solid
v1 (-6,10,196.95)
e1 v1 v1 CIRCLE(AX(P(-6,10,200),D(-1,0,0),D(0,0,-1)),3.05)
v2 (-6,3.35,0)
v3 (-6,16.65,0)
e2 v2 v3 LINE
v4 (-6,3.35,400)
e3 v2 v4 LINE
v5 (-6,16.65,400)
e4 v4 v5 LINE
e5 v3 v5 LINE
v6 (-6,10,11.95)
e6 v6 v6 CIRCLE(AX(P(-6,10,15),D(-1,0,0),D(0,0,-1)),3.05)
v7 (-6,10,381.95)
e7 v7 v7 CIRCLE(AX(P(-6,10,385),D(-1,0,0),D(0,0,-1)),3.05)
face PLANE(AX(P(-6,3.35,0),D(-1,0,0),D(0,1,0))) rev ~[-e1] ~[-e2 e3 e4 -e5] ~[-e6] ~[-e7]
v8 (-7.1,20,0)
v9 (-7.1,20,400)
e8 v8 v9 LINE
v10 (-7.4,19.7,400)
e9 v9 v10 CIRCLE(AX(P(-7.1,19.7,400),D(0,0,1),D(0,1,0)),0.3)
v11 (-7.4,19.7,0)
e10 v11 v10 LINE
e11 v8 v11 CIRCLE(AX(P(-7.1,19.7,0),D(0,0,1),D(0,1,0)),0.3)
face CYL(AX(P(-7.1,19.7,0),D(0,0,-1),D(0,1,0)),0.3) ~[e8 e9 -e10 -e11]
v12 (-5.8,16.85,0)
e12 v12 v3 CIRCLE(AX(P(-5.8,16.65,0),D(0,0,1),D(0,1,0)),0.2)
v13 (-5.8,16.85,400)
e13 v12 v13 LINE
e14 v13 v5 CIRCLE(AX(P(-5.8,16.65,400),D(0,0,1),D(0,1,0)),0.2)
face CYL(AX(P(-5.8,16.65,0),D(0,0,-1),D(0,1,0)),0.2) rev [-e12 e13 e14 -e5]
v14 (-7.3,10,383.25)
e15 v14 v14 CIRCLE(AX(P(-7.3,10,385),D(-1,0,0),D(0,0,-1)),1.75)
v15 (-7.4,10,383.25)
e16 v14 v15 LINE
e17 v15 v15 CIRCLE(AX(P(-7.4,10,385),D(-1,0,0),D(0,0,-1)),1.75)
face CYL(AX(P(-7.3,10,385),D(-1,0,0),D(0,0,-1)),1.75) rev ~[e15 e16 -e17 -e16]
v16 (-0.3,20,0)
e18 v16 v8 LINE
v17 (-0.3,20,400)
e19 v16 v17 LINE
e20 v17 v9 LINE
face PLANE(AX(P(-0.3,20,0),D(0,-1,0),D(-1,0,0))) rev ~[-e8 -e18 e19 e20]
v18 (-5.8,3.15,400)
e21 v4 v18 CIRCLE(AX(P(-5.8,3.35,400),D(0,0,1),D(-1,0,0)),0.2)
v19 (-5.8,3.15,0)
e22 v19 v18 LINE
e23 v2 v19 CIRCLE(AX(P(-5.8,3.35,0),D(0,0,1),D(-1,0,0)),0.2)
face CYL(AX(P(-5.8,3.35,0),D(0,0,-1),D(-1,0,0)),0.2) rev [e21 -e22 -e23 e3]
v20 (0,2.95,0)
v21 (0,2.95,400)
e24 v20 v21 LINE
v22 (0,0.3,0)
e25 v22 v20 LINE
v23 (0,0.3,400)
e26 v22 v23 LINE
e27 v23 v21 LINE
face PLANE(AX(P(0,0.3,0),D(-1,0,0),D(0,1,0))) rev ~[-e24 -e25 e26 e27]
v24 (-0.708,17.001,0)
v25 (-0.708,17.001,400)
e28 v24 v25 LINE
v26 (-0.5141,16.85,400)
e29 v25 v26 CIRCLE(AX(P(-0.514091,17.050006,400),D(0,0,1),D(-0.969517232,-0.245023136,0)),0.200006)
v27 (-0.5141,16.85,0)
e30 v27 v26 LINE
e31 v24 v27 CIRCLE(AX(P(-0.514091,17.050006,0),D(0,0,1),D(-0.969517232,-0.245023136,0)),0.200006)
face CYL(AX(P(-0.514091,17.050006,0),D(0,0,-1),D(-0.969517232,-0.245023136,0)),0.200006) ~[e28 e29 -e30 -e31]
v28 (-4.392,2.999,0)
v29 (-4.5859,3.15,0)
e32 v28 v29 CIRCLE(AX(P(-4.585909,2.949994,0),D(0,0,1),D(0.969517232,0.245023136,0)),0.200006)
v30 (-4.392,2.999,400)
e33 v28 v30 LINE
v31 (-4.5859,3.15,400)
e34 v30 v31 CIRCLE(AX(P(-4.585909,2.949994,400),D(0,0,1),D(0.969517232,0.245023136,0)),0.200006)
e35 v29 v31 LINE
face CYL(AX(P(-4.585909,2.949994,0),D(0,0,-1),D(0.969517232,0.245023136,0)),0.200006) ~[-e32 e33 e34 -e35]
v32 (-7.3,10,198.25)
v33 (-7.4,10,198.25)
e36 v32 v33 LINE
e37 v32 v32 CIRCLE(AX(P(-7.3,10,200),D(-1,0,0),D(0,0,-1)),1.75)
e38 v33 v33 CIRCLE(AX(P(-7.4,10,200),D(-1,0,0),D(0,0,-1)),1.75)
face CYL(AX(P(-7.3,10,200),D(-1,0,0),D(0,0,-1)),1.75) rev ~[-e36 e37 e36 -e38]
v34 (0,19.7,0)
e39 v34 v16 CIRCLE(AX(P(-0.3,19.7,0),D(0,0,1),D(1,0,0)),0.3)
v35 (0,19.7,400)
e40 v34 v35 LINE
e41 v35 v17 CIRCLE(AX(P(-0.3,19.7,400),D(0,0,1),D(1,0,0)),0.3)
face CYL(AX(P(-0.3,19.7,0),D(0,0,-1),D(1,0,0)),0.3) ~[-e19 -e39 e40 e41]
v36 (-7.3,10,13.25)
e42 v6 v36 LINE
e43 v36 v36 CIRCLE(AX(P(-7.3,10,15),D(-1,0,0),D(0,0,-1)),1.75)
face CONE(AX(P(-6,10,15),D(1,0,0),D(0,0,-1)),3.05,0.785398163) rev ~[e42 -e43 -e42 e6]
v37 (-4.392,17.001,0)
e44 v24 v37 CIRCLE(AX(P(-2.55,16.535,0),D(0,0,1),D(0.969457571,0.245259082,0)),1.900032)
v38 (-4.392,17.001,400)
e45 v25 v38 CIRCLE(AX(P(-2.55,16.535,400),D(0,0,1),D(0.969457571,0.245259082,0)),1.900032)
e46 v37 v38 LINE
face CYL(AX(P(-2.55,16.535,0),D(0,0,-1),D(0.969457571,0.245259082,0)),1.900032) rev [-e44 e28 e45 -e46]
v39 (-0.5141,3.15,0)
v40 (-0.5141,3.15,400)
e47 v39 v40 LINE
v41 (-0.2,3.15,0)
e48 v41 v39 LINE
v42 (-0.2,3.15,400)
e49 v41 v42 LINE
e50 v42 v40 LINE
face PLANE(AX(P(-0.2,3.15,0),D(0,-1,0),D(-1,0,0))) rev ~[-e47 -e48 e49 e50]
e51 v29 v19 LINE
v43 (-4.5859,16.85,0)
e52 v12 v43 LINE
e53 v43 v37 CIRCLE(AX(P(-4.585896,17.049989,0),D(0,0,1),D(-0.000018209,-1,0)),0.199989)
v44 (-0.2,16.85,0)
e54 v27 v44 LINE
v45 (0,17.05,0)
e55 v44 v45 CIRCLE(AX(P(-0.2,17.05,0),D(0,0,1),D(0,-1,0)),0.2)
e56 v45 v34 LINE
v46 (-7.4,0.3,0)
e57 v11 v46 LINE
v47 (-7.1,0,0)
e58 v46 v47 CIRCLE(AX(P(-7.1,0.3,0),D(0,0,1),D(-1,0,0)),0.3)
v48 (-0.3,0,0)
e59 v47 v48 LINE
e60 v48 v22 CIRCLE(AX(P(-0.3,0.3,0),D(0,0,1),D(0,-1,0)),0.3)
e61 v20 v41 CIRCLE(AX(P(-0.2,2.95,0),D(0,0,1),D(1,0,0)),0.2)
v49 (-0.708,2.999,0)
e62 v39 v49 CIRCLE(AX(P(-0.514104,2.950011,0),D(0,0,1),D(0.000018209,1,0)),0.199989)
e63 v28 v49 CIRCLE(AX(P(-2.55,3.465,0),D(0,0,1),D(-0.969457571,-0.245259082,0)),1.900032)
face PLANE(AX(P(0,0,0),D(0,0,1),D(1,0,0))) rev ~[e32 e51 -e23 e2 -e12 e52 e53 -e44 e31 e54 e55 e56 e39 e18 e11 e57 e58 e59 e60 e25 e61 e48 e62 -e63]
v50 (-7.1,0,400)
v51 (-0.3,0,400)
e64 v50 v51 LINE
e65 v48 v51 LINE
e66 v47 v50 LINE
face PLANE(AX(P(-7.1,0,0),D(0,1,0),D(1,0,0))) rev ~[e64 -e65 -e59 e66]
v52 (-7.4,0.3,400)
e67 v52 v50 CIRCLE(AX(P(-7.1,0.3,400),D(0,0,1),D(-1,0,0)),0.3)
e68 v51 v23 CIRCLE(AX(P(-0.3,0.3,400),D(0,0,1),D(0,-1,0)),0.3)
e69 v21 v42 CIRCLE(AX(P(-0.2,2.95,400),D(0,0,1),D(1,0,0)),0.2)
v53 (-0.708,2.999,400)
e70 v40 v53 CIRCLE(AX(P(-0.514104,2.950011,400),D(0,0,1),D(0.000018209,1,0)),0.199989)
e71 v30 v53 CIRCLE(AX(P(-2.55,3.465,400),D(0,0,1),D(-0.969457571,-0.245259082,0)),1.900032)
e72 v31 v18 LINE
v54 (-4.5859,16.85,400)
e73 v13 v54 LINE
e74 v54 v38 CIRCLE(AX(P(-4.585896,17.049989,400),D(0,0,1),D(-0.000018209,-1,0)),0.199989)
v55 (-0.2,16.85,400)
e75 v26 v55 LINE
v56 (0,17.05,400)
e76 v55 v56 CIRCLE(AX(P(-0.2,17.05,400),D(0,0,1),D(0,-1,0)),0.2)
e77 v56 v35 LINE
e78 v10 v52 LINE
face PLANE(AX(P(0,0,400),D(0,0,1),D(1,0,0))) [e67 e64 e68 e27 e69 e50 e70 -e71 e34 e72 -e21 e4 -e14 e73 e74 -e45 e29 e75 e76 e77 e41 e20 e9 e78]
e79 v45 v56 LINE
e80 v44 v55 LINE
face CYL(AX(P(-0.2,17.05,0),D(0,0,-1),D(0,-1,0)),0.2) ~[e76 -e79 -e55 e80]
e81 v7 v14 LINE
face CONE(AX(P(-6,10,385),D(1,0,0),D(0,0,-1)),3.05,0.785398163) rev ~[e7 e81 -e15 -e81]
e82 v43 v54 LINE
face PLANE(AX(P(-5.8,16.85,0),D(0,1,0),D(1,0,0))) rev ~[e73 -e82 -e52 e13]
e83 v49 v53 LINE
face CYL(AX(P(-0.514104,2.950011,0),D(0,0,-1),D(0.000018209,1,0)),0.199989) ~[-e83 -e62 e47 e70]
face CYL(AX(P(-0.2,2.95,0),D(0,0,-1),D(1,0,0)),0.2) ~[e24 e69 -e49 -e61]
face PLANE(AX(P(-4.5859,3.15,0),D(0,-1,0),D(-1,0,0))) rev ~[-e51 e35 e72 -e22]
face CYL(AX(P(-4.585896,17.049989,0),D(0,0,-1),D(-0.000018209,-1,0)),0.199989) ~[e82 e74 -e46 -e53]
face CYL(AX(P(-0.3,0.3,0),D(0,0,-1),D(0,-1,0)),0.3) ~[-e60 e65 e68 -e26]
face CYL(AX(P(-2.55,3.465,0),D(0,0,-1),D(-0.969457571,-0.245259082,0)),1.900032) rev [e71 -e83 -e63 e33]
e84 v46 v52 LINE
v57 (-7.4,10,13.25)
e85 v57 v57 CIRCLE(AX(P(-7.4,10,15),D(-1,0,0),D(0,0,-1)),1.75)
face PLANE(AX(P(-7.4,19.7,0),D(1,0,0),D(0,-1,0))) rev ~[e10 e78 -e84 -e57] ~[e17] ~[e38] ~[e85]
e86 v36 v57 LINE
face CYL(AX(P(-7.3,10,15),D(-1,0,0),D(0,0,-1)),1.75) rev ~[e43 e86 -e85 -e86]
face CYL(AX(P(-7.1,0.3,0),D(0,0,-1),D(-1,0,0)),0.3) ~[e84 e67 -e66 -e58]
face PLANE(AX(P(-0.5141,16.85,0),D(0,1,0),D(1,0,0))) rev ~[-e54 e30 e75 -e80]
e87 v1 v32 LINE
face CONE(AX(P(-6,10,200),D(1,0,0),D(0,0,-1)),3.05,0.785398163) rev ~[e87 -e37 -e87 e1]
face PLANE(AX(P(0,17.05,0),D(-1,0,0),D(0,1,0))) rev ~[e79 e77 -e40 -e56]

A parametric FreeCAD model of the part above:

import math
import FreeCAD as App
import Part
import Sketcher

V = App.Vector
Q = App.Units.Quantity

doc = App.newDocument("Part")
params = doc.addObject("Spreadsheet::Sheet", "Params")
for row, (alias, value) in enumerate([
    ("sketch1_radius", "0.3 mm"),
    ("sketch1_radius2", "0.2 mm"),
    ("sketch1_radius3", "1.9 mm"),
    ("sketch1_width", "6.8 mm"),
    ("sketch1_height", "19.4 mm"),
    ("pad1_length", "400 mm"),
    ("sketch2_diameter", "3.5 mm"),
    ("hole_diameter", "3.5 mm"),
    ("hole_depth", "1.4 mm"),
    ("hole_csink_diameter", "6.1 mm"),
    ("linearpattern_pitch", "185 mm"),
], start=1):
    params.set(f"A{row}", alias)
    params.set(f"B{row}", "=" + value)
    params.setAlias(f"B{row}", alias)

body = doc.addObject("PartDesign::Body", "Body")

sketch1 = doc.addObject("Sketcher::SketchObject", "Sketch")
body.addObject(sketch1)
sketch1.AttachmentSupport = (doc.XY_Plane, [""])
sketch1.MapMode = "FlatFace"
sketch1.addGeometry(Part.ArcOfCircle(Part.Circle(V(-7.1, 19.7, 0), V(0, 0, 1), 0.3), math.radians(90), math.radians(180)), False)
sketch1.addGeometry(Part.LineSegment(V(-7.4, 19.7, 0), V(-7.4, 0.3, 0)), False)
sketch1.addGeometry(Part.ArcOfCircle(Part.Circle(V(-7.1, 0.3, 0), V(0, 0, 1), 0.3), math.radians(180), math.radians(270)), False)
sketch1.addGeometry(Part.LineSegment(V(-7.1, 0, 0), V(-0.3, 0, 0)), False)
sketch1.addGeometry(Part.ArcOfCircle(Part.Circle(V(-0.3, 0.3, 0), V(0, 0, 1), 0.3), math.radians(-90), math.radians(0)), False)
sketch1.addGeometry(Part.LineSegment(V(0, 0.3, 0), V(0, 2.95, 0)), False)
sketch1.addGeometry(Part.ArcOfCircle(Part.Circle(V(-0.2, 2.95, 0), V(0, 0, 1), 0.2), math.radians(0), math.radians(90)), False)
sketch1.addGeometry(Part.LineSegment(V(-0.2, 3.15, 0), V(-0.5141, 3.15, 0)), False)
sketch1.addGeometry(Part.ArcOfCircle(Part.Circle(V(-0.5141, 2.95, 0), V(0, 0, 1), 0.2), math.radians(90), math.radians(165.817842)), False)
sketch1.addGeometry(Part.ArcOfCircle(Part.Circle(V(-2.55, 3.465, 0), V(0, 0, 1), 1.900032), math.radians(-165.802855), math.radians(-14.197145)), False)
sketch1.addGeometry(Part.ArcOfCircle(Part.Circle(V(-4.5859, 2.95, 0), V(0, 0, 1), 0.199996), math.radians(14.182158), math.radians(90)), False)
sketch1.addGeometry(Part.LineSegment(V(-4.5859, 3.15, 0), V(-5.8, 3.15, 0)), False)
sketch1.addGeometry(Part.ArcOfCircle(Part.Circle(V(-5.8, 3.35, 0), V(0, 0, 1), 0.2), math.radians(180), math.radians(270)), False)
sketch1.addGeometry(Part.LineSegment(V(-6, 3.35, 0), V(-6, 16.65, 0)), False)
sketch1.addGeometry(Part.ArcOfCircle(Part.Circle(V(-5.8, 16.65, 0), V(0, 0, 1), 0.2), math.radians(90), math.radians(180)), False)
sketch1.addGeometry(Part.LineSegment(V(-5.8, 16.85, 0), V(-4.5859, 16.85, 0)), False)
sketch1.addGeometry(Part.ArcOfCircle(Part.Circle(V(-4.5859, 17.05, 0), V(0, 0, 1), 0.2), math.radians(-90), math.radians(-14.182158)), False)
sketch1.addGeometry(Part.ArcOfCircle(Part.Circle(V(-2.55, 16.535, 0), V(0, 0, 1), 1.900032), math.radians(14.197145), math.radians(165.802855)), False)
sketch1.addGeometry(Part.ArcOfCircle(Part.Circle(V(-0.5141, 17.05, 0), V(0, 0, 1), 0.199996), math.radians(-165.817842), math.radians(-90)), False)
sketch1.addGeometry(Part.LineSegment(V(-0.5141, 16.85, 0), V(-0.2, 16.85, 0)), False)
sketch1.addGeometry(Part.ArcOfCircle(Part.Circle(V(-0.2, 17.05, 0), V(0, 0, 1), 0.2), math.radians(-90), math.radians(0)), False)
sketch1.addGeometry(Part.LineSegment(V(0, 17.05, 0), V(0, 19.7, 0)), False)
sketch1.addGeometry(Part.ArcOfCircle(Part.Circle(V(-0.3, 19.7, 0), V(0, 0, 1), 0.3), math.radians(0), math.radians(90)), False)
sketch1.addGeometry(Part.LineSegment(V(-0.3, 20, 0), V(-7.1, 20, 0)), False)
sketch1.addConstraint(Sketcher.Constraint("Tangent", 0, 2, 1, 1))
sketch1.addConstraint(Sketcher.Constraint("Tangent", 1, 2, 2, 1))
sketch1.addConstraint(Sketcher.Constraint("Tangent", 2, 2, 3, 1))
sketch1.addConstraint(Sketcher.Constraint("Tangent", 3, 2, 4, 1))
sketch1.addConstraint(Sketcher.Constraint("Tangent", 4, 2, 5, 1))
sketch1.addConstraint(Sketcher.Constraint("Tangent", 5, 2, 6, 1))
sketch1.addConstraint(Sketcher.Constraint("Tangent", 6, 2, 7, 1))
sketch1.addConstraint(Sketcher.Constraint("Tangent", 7, 2, 8, 1))
sketch1.addConstraint(Sketcher.Constraint("Tangent", 8, 2, 9, 2))
sketch1.addConstraint(Sketcher.Constraint("Tangent", 9, 1, 10, 1))
sketch1.addConstraint(Sketcher.Constraint("Tangent", 10, 2, 11, 1))
sketch1.addConstraint(Sketcher.Constraint("Tangent", 11, 2, 12, 2))
sketch1.addConstraint(Sketcher.Constraint("Tangent", 12, 1, 13, 1))
sketch1.addConstraint(Sketcher.Constraint("Tangent", 13, 2, 14, 2))
sketch1.addConstraint(Sketcher.Constraint("Tangent", 14, 1, 15, 1))
sketch1.addConstraint(Sketcher.Constraint("Tangent", 15, 2, 16, 1))
sketch1.addConstraint(Sketcher.Constraint("Tangent", 16, 2, 17, 2))
sketch1.addConstraint(Sketcher.Constraint("Tangent", 17, 1, 18, 1))
sketch1.addConstraint(Sketcher.Constraint("Tangent", 18, 2, 19, 1))
sketch1.addConstraint(Sketcher.Constraint("Tangent", 19, 2, 20, 1))
sketch1.addConstraint(Sketcher.Constraint("Tangent", 20, 2, 21, 1))
sketch1.addConstraint(Sketcher.Constraint("Tangent", 21, 2, 22, 1))
sketch1.addConstraint(Sketcher.Constraint("Tangent", 22, 2, 23, 1))
sketch1.addConstraint(Sketcher.Constraint("Tangent", 23, 2, 0, 1))
sketch1.addConstraint(Sketcher.Constraint("Vertical", 1))
sketch1.addConstraint(Sketcher.Constraint("Horizontal", 3))
sketch1.addConstraint(Sketcher.Constraint("Vertical", 5))
sketch1.addConstraint(Sketcher.Constraint("Horizontal", 7))
sketch1.addConstraint(Sketcher.Constraint("Horizontal", 11))
sketch1.addConstraint(Sketcher.Constraint("Vertical", 13))
sketch1.addConstraint(Sketcher.Constraint("Horizontal", 15))
sketch1.addConstraint(Sketcher.Constraint("Horizontal", 19))
sketch1.addConstraint(Sketcher.Constraint("Vertical", 21))
sketch1.addConstraint(Sketcher.Constraint("Horizontal", 23))
sketch1.addConstraint(Sketcher.Constraint("Equal", 0, 2))
sketch1.addConstraint(Sketcher.Constraint("Equal", 2, 4))
sketch1.addConstraint(Sketcher.Constraint("Equal", 6, 8))
sketch1.addConstraint(Sketcher.Constraint("Equal", 8, 10))
sketch1.addConstraint(Sketcher.Constraint("Equal", 10, 12))
sketch1.addConstraint(Sketcher.Constraint("Equal", 12, 14))
sketch1.addConstraint(Sketcher.Constraint("Equal", 14, 16))
sketch1.addConstraint(Sketcher.Constraint("Equal", 9, 17))
sketch1.addConstraint(Sketcher.Constraint("Equal", 16, 18))
sketch1.addConstraint(Sketcher.Constraint("Equal", 18, 20))
sketch1.addConstraint(Sketcher.Constraint("Equal", 4, 22))
sketch1.addConstraint(Sketcher.Constraint("PointOnObject", 2, 2, -1))
sketch1.addConstraint(Sketcher.Constraint("PointOnObject", 4, 2, -2))
sketch1.addConstraint(Sketcher.Constraint("PointOnObject", 20, 2, -2))
sketch1.addConstraint(Sketcher.Constraint("Horizontal", 8, 3, 10, 3))
sketch1.addConstraint(Sketcher.Constraint("Horizontal", 16, 3, 18, 3))
sketch1.addConstraint(Sketcher.Constraint("Vertical", 10, 3, 16, 3))
sketch1.addConstraint(Sketcher.Constraint("Vertical", 9, 3, 17, 3))
sketch1.addConstraint(Sketcher.Constraint("Equal", 5, 21))
sketch1.addConstraint(Sketcher.Constraint("Radius", 0, Q("0.3 mm")))
sketch1.addConstraint(Sketcher.Constraint("Radius", 6, Q("0.2 mm")))
sketch1.addConstraint(Sketcher.Constraint("Radius", 9, Q("1.9 mm")))
sketch1.addConstraint(Sketcher.Constraint("DistanceX", 3, 1, 3, 2, Q("6.8 mm")))
sketch1.addConstraint(Sketcher.Constraint("DistanceY", 1, 2, 1, 1, Q("19.4 mm")))
sketch1.addConstraint(Sketcher.Constraint("DistanceY", 13, 1, 13, 2, Q("13.3 mm")))
sketch1.addConstraint(Sketcher.Constraint("DistanceX", 12, 1, -1, 1, Q("6 mm")))
sketch1.addConstraint(Sketcher.Constraint("DistanceX", 7, 2, 7, 1, Q("0.314 mm")))
sketch1.addConstraint(Sketcher.Constraint("DistanceX", 11, 2, 11, 1, Q("1.214 mm")))
sketch1.setExpression("Constraints[53]", "Params.sketch1_radius")
sketch1.setExpression("Constraints[54]", "Params.sketch1_radius2")
sketch1.setExpression("Constraints[55]", "Params.sketch1_radius3")
sketch1.setExpression("Constraints[56]", "Params.sketch1_width")
sketch1.setExpression("Constraints[57]", "Params.sketch1_height")
pad1 = doc.addObject("PartDesign::Pad", "Pad")
body.addObject(pad1)
pad1.Profile = sketch1
pad1.setExpression("Length", "Params.pad1_length")

sketch2 = doc.addObject("Sketcher::SketchObject", "Sketch001")
body.addObject(sketch2)
sketch2.AttachmentSupport = (doc.YZ_Plane, [""])
sketch2.MapMode = "FlatFace"
sketch2.AttachmentOffset = App.Placement(V(0, 0, -6), App.Rotation())
sketch2.addGeometry(Part.Circle(V(10, 15, 0), V(0, 0, 1), 1.75), False)
sketch2.addConstraint(Sketcher.Constraint("Diameter", 0, Q("3.5 mm")))
sketch2.addConstraint(Sketcher.Constraint("DistanceX", -1, 1, 0, 3, Q("10 mm")))
sketch2.addConstraint(Sketcher.Constraint("DistanceY", -1, 1, 0, 3, Q("15 mm")))
sketch2.setExpression("Constraints[0]", "Params.sketch2_diameter")
doc.recompute()
hole = doc.addObject("PartDesign::Hole", "Hole")
body.addObject(hole)
hole.Profile = sketch2
hole.ThreadType = "None"
hole.setExpression("Diameter", "Params.hole_diameter")
hole.DepthType = "Dimension"
hole.setExpression("Depth", "Params.hole_depth")
hole.DrillPoint = "Flat"
hole.HoleCutType = "Countersink"
hole.setExpression("HoleCutDiameter", "Params.hole_csink_diameter")
hole.HoleCutCountersinkAngle = 90
doc.recompute()

linearpattern = doc.addObject("PartDesign::LinearPattern", "LinearPattern")
body.addObject(linearpattern)
linearpattern.Originals = [hole]
linearpattern.Direction = (doc.Z_Axis, [""])
linearpattern.Mode = "offset"
linearpattern.setExpression("Offset", "Params.linearpattern_pitch")
linearpattern.Occurrences = 3
body.Tip = linearpattern

doc.recompute()
